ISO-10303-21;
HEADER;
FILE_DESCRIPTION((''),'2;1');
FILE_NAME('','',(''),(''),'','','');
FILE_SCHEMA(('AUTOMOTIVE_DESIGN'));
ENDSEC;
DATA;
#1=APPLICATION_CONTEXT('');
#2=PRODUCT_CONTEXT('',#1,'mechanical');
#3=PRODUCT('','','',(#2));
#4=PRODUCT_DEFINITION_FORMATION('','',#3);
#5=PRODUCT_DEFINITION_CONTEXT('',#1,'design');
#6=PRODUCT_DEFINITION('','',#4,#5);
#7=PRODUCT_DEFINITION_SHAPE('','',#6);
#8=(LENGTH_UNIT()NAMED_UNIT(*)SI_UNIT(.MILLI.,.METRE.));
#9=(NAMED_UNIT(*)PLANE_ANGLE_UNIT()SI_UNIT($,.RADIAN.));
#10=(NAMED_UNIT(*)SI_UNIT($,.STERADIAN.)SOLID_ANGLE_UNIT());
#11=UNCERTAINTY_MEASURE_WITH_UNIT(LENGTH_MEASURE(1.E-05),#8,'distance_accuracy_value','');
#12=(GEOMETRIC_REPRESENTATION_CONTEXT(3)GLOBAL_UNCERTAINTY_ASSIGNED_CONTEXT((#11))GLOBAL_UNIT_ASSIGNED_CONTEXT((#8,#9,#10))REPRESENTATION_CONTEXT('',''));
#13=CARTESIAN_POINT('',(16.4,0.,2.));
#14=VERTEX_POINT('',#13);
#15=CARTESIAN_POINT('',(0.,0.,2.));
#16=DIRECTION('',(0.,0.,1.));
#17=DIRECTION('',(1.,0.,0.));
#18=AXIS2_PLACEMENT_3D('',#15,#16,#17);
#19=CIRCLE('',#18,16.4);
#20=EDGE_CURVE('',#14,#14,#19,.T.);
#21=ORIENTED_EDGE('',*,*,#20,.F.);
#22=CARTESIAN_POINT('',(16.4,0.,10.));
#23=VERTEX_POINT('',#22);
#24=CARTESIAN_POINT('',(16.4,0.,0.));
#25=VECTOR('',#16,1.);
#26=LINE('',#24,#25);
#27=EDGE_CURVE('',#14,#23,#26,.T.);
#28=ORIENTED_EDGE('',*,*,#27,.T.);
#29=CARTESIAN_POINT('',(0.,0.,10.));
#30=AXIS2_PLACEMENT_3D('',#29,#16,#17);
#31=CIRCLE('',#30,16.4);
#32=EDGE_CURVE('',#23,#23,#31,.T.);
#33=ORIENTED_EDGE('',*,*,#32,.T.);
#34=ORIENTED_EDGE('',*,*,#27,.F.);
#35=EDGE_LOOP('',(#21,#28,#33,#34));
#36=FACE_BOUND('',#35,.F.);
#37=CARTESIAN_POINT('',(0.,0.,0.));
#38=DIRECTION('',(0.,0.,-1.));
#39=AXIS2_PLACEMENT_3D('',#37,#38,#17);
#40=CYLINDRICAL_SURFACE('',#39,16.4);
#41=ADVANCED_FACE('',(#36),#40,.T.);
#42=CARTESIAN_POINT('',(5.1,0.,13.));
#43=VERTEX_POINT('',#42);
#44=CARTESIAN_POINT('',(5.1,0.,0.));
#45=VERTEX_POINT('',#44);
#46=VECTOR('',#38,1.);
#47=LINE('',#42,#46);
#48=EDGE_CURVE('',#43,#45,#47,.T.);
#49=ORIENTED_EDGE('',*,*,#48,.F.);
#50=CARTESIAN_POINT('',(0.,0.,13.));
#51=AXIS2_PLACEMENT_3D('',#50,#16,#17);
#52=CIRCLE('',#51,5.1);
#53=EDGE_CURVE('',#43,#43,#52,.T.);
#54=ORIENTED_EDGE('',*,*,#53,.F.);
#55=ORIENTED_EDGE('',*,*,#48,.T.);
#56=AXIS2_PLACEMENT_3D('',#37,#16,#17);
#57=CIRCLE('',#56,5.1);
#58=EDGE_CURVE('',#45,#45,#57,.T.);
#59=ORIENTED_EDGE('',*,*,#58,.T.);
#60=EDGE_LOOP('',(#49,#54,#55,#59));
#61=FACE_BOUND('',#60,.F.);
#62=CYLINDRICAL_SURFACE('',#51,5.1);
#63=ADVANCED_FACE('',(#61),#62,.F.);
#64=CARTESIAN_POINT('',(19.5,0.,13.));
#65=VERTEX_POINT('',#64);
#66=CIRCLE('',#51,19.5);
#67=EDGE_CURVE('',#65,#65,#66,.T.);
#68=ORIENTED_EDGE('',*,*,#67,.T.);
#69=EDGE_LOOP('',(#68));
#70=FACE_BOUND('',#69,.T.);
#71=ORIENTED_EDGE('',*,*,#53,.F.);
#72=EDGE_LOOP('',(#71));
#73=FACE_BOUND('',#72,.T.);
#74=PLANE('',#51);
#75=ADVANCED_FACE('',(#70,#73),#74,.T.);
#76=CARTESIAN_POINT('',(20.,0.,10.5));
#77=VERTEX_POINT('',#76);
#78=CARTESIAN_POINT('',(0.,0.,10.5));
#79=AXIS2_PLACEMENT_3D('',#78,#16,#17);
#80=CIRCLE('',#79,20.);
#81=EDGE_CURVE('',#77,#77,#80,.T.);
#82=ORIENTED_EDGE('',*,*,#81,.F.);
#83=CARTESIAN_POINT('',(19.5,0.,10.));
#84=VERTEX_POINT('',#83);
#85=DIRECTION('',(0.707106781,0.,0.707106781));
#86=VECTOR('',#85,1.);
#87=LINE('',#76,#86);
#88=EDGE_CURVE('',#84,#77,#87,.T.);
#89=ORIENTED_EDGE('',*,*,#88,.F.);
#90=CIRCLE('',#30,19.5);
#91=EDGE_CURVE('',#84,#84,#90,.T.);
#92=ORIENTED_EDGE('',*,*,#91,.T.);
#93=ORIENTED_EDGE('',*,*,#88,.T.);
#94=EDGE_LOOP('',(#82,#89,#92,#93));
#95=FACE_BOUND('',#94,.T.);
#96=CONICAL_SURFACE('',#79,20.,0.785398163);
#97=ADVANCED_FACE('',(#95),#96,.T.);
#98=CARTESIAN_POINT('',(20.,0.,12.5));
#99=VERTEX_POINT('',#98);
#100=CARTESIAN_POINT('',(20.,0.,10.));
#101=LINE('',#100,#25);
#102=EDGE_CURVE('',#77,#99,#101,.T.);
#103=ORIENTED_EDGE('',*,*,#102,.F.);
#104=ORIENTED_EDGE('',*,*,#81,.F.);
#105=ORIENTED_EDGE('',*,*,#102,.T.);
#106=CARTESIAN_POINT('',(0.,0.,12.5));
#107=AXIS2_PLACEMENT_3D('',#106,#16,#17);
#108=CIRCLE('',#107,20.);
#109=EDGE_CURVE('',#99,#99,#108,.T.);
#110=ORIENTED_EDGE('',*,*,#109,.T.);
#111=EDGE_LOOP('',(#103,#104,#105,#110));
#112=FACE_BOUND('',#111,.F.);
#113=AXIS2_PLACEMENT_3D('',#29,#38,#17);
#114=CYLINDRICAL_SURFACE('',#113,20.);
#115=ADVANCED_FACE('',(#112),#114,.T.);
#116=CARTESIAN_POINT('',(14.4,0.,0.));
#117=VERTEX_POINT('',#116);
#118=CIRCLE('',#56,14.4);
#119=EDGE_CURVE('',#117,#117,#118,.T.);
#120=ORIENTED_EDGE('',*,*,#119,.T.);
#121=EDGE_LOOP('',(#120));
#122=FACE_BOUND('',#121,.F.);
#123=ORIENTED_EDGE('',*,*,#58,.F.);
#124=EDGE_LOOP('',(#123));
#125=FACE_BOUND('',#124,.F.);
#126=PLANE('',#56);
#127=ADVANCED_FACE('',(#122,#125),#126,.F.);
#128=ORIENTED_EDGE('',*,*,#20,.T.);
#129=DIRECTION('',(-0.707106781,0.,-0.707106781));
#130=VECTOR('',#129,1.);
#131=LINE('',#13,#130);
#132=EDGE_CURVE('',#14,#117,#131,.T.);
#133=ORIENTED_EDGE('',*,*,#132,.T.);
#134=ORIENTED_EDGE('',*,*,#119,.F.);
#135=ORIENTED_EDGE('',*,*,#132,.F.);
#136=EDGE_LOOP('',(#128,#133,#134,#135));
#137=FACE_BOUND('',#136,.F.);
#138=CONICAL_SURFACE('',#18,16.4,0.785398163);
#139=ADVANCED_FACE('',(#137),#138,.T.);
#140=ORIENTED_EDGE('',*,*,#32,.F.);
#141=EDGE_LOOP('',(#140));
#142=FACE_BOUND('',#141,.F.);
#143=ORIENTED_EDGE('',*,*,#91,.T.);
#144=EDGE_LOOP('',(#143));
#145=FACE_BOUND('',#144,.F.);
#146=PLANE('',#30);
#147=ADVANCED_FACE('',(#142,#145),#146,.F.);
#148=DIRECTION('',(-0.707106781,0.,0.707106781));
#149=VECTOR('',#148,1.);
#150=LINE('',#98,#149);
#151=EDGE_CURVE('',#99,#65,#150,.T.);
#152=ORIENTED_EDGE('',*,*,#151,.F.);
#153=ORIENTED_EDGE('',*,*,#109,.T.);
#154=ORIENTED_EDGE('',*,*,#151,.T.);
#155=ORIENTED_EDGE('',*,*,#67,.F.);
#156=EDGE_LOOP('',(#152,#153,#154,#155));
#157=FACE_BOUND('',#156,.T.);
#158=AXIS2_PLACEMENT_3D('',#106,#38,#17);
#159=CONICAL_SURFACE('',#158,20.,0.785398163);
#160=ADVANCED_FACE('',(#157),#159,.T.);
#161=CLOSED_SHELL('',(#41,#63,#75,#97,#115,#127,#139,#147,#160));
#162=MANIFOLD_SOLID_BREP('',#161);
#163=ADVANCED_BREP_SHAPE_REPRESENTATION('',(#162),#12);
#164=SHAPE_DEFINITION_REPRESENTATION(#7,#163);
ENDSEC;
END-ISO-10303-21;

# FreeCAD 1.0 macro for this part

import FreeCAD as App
import Part
import Sketcher
from FreeCAD import Vector
Q = App.Units.Quantity


def edges_at(feature, points):
    """Names of the edges that pass closest to the given points."""
    edges = feature.Shape.Edges
    near = lambda p: min(range(len(edges)), key=lambda i: edges[i].distToShape(Part.Vertex(*p))[0])
    return sorted({f"Edge{near(p) + 1}" for p in points})

doc = App.newDocument("Part")
body = doc.addObject("PartDesign::Body", "Body")

# Sketch on XY plane
sketch1 = body.newObject("Sketcher::SketchObject", "Sketch")
sketch1.AttachmentSupport = (doc.getObject("XY_Plane"), [""])
sketch1.MapMode = "FlatFace"
sketch1.addGeometry(Part.Circle(Vector(0, 0, 0), Vector(0, 0, 1), 16), False)
sketch1.addConstraint([
    Sketcher.Constraint("Coincident", 0, 3, -1, 1),
    Sketcher.Constraint("Diameter", 0, Q("32.8 mm")),
])
pad1 = body.newObject("PartDesign::Pad", "Pad")
pad1.Profile = sketch1
pad1.Length = 10

# Sketch on XY plane
sketch2 = body.newObject("Sketcher::SketchObject", "Sketch001")
sketch2.AttachmentSupport = (doc.getObject("XY_Plane"), [""])
sketch2.MapMode = "FlatFace"
sketch2.AttachmentOffset = App.Placement(Vector(0, 0, 10), App.Rotation())
sketch2.addGeometry(Part.Circle(Vector(0, 0, 0), Vector(0, 0, 1), 20), False)
sketch2.addConstraint([
    Sketcher.Constraint("Coincident", 0, 3, -1, 1),
    Sketcher.Constraint("Diameter", 0, Q("40 mm")),
])
pad2 = body.newObject("PartDesign::Pad", "Pad001")
pad2.Profile = sketch2
pad2.Length = 3
doc.recompute()

chamfer = body.newObject("PartDesign::Chamfer", "Chamfer")
chamfer.Base = (pad2, edges_at(pad2, [(-16.4, 0, 0)]))
chamfer.Size = 2
doc.recompute()

chamfer2 = body.newObject("PartDesign::Chamfer", "Chamfer001")
chamfer2.Base = (chamfer, edges_at(chamfer, [(-20, 0, 13), (-20, 0, 10)]))
chamfer2.Size = 0.5

# Sketch on XY plane
sketch3 = body.newObject("Sketcher::SketchObject", "Sketch002")
sketch3.AttachmentSupport = (doc.getObject("XY_Plane"), [""])
sketch3.MapMode = "FlatFace"
sketch3.AttachmentOffset = App.Placement(Vector(0, 0, 13), App.Rotation())
sketch3.addGeometry(Part.Circle(Vector(0, 0, 0), Vector(0, 0, 1), 5), False)
sketch3.addConstraint([
    Sketcher.Constraint("Coincident", 0, 3, -1, 1),
    Sketcher.Constraint("Diameter", 0, Q("10.2 mm")),
])
pocket1 = body.newObject("PartDesign::Pocket", "Pocket")
pocket1.Profile = sketch3
pocket1.Type = "ThroughAll"

doc.recompute()
